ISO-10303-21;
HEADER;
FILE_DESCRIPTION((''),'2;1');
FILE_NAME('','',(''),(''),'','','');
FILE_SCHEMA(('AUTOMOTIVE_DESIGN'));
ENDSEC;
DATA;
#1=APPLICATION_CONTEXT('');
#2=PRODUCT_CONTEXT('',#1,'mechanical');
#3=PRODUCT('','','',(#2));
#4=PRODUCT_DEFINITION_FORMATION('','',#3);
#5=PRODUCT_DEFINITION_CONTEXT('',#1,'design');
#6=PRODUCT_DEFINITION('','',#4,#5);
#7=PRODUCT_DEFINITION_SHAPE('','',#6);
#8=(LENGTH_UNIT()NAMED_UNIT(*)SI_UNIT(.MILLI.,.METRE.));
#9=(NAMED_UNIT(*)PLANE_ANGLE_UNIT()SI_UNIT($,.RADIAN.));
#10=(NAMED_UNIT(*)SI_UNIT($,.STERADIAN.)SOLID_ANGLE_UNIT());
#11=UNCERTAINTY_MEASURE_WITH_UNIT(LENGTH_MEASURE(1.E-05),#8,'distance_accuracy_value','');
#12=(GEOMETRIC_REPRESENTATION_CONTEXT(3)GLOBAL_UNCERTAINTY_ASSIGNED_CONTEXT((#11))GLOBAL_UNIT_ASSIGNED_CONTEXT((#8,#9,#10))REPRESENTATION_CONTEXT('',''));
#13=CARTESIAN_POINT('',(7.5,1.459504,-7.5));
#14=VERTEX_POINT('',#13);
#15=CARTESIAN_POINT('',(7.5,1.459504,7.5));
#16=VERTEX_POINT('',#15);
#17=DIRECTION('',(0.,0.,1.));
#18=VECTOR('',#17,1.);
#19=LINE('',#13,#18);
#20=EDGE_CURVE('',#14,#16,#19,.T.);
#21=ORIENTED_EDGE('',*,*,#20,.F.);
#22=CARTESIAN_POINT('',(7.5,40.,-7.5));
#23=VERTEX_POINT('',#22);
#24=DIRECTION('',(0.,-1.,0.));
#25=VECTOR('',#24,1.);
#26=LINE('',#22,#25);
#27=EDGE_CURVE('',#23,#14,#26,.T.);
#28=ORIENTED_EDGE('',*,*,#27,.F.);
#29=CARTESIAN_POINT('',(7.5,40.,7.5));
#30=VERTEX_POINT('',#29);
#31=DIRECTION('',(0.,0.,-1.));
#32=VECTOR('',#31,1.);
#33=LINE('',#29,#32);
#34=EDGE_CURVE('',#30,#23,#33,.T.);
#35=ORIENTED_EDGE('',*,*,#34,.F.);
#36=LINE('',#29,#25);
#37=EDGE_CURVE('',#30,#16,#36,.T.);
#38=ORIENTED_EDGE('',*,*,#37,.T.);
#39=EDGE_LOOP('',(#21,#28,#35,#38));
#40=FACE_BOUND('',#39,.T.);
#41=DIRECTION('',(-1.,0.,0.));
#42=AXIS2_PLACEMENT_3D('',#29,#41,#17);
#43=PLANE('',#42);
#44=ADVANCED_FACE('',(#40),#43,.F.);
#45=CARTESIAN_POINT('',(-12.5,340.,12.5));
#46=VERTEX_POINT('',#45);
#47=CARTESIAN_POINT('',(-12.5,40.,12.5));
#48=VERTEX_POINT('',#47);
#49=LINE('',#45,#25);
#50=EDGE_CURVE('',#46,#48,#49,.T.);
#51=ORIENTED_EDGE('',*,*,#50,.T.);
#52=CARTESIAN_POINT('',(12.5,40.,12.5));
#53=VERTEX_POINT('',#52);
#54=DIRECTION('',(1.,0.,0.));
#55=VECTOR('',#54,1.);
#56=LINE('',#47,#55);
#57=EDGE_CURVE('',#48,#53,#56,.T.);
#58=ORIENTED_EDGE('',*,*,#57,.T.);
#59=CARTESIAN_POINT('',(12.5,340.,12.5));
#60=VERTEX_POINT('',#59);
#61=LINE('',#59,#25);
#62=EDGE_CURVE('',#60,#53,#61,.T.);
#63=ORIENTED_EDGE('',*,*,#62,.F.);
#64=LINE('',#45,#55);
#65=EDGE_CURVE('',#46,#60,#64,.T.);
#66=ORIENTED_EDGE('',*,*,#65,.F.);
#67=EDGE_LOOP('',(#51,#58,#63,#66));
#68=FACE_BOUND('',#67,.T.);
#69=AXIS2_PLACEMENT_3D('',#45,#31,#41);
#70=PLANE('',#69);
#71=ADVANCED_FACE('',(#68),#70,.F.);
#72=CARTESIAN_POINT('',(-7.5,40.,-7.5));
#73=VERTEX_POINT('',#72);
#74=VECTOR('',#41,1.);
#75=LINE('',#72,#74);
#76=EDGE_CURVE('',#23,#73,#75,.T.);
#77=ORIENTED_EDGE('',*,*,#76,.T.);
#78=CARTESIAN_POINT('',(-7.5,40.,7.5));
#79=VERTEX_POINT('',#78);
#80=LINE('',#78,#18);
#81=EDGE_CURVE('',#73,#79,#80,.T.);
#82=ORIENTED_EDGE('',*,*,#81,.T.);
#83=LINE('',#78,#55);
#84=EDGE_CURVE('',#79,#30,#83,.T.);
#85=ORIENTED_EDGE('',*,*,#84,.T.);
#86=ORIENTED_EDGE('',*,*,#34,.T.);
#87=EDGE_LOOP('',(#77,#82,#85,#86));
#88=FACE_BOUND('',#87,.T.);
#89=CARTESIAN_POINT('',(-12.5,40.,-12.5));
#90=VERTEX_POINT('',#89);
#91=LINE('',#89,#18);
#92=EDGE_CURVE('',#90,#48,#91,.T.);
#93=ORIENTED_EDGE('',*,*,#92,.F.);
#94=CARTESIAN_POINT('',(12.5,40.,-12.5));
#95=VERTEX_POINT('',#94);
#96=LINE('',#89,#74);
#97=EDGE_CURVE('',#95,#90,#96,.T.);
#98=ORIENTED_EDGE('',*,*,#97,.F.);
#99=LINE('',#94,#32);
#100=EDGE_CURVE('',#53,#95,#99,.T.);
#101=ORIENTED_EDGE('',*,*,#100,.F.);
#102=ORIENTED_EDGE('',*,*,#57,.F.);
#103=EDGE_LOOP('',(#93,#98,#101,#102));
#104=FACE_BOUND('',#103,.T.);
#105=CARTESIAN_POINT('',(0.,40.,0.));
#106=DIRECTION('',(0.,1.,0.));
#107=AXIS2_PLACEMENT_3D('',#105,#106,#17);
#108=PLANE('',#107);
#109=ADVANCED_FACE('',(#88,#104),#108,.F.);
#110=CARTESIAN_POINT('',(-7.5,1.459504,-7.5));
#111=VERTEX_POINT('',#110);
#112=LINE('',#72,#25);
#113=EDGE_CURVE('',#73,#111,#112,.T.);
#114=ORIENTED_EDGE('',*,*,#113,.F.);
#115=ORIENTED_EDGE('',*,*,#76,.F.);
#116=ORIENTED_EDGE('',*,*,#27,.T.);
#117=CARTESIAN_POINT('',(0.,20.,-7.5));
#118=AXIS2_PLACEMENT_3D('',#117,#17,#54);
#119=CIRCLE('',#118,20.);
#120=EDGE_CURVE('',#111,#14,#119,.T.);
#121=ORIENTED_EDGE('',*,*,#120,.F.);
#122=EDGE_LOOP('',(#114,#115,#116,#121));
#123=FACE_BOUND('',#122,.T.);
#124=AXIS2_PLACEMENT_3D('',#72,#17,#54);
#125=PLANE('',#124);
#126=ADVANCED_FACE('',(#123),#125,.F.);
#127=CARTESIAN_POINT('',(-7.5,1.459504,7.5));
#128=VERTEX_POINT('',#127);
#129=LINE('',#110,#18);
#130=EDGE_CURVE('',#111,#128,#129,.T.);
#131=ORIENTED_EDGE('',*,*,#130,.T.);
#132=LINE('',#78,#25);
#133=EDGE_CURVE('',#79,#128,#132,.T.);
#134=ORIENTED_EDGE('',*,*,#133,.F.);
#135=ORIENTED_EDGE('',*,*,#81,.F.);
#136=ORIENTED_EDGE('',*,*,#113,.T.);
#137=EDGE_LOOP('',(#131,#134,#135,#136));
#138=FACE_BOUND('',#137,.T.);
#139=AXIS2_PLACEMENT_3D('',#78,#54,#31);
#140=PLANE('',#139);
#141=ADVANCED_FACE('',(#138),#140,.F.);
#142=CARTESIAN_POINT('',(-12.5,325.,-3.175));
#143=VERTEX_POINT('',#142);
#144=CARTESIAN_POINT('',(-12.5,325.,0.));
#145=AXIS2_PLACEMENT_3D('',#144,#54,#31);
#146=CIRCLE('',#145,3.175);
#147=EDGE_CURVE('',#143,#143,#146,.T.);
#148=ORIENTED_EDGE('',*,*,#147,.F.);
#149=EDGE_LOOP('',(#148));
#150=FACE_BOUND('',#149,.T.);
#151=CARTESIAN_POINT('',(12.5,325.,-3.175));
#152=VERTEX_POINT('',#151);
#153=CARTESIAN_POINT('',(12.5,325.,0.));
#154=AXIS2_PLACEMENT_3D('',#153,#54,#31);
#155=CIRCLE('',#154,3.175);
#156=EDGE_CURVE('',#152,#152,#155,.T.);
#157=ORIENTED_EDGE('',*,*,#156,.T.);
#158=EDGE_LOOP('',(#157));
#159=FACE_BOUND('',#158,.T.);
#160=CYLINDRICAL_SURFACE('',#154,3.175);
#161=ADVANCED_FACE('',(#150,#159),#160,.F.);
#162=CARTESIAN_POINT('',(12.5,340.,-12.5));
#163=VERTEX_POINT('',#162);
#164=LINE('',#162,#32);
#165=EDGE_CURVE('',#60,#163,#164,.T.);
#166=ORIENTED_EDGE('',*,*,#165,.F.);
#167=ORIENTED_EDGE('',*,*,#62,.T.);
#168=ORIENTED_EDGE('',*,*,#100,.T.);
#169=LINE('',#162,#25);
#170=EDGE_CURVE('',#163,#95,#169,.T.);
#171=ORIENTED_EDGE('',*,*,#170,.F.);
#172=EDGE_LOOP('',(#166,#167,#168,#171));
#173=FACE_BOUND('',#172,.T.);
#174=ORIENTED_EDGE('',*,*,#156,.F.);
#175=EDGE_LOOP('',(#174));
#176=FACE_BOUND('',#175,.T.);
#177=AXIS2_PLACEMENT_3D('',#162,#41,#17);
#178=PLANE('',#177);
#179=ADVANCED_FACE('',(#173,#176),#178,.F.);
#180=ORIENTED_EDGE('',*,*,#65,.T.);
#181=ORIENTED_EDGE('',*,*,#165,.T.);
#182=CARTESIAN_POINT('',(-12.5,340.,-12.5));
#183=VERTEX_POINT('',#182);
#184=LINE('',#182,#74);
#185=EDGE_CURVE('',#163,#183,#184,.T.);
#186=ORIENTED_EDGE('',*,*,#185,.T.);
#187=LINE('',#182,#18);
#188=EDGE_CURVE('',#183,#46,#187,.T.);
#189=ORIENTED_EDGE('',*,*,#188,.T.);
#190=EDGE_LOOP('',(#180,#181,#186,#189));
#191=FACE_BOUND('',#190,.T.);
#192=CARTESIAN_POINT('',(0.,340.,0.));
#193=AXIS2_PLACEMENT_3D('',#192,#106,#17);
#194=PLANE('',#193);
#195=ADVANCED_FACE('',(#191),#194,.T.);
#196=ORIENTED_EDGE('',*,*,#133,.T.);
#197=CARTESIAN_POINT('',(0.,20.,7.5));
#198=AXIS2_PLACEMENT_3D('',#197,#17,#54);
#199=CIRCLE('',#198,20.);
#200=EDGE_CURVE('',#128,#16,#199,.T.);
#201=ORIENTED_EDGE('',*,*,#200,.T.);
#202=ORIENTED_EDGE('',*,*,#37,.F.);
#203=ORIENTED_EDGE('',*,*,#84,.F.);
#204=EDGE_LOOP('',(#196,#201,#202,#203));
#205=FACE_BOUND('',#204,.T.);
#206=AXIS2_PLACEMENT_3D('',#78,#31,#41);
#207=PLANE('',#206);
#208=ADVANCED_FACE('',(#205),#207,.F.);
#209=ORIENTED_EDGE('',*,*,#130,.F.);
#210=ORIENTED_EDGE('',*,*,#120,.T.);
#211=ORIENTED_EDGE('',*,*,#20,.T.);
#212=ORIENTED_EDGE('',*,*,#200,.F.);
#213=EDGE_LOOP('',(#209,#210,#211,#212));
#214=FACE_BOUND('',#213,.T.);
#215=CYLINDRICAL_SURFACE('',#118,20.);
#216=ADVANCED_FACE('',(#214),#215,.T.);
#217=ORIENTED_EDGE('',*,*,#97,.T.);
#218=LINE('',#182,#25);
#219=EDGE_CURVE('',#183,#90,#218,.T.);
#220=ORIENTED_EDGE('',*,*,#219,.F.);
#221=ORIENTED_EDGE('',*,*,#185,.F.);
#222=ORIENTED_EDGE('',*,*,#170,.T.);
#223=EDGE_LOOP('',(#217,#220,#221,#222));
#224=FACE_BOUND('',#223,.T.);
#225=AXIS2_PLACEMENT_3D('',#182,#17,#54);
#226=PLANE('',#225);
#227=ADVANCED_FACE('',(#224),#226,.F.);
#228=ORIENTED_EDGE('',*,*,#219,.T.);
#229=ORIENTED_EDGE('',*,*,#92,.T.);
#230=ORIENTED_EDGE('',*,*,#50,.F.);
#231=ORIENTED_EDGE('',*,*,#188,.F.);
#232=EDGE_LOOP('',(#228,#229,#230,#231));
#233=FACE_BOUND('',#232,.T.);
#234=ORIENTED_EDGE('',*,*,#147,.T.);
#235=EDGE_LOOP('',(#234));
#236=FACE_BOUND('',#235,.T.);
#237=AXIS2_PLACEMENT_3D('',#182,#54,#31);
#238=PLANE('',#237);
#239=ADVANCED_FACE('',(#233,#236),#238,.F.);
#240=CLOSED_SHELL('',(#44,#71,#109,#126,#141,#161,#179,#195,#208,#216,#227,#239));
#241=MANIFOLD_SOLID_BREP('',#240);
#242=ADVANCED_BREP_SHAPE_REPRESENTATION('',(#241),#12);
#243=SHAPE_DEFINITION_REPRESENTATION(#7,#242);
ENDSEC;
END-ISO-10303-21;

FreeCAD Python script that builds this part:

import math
import FreeCAD as App
import Part
import Sketcher
Q = App.Units.Quantity


def add_polygon(sketch, points):
    """Adds a closed chain of lines whose ends are joined by coincident constraints."""
    first, n = sketch.GeometryCount, len(points)
    for a, b in zip(points, points[1:] + points[:1]):
        sketch.addGeometry(Part.LineSegment(App.Vector(*a, 0), App.Vector(*b, 0)), False)
    for i in range(n):
        sketch.addConstraint(Sketcher.Constraint("Coincident", first + i, 2, first + (i + 1) % n, 1))

doc = App.newDocument("Part")
body = doc.addObject("PartDesign::Body", "Body")

# Sketch on XZ plane
sketch1 = body.newObject("Sketcher::SketchObject", "Sketch")
sketch1.AttachmentSupport = (doc.getObject("XZ_Plane"), [""])
sketch1.MapMode = "FlatFace"
add_polygon(sketch1, [(-8, -8), (-8, 8), (8, 8), (8, -8)])  # lines 0-3
sketch1.addConstraint([
    Sketcher.Constraint("Vertical", 0),
    Sketcher.Constraint("Horizontal", 1),
    Sketcher.Constraint("Vertical", 2),
    Sketcher.Constraint("Horizontal", 3),
    Sketcher.Constraint("Symmetric", 0, 2, 2, 2, -1, 1),
    Sketcher.Constraint("Equal", 3, 0),
    Sketcher.Constraint("DistanceX", 1, 1, 1, 2, Q("15 mm")),
])
pad1 = body.newObject("PartDesign::Pad", "Pad")
pad1.Profile = sketch1
pad1.Length = 40
pad1.Reversed = True

# Sketch on XY plane
sketch2 = body.newObject("Sketcher::SketchObject", "Sketch001")
sketch2.AttachmentSupport = (doc.getObject("XY_Plane"), [""])
sketch2.MapMode = "FlatFace"
sketch2.AttachmentOffset = App.Placement(App.Vector(0, 0, 7.5), App.Rotation())
sketch2.addGeometry([
    Part.ArcOfCircle(Part.Circle(App.Vector(0, 20, 0), App.Vector(0, 0, 1), 20), math.radians(-112), math.radians(-90)),  # 0
    Part.LineSegment(App.Vector(-7.5, 1.5, 0), App.Vector(-7.5, 0, 0)),  # 1
    Part.LineSegment(App.Vector(-7.5, 0, 0), App.Vector(0, 0, 0)),  # 2
    Part.ArcOfCircle(Part.Circle(App.Vector(0, 20, 0), App.Vector(0, 0, 1), 20), math.radians(-90), math.radians(-68)),  # 3
    Part.LineSegment(App.Vector(0, 0, 0), App.Vector(7.5, 0, 0)),  # 4
    Part.LineSegment(App.Vector(7.5, 0, 0), App.Vector(7.5, 1.5, 0)),  # 5
], False)
sketch2.addConstraint([
    Sketcher.Constraint("Coincident", 0, 1, 1, 1),
    Sketcher.Constraint("Coincident", 1, 2, 2, 1),
    Sketcher.Constraint("Tangent", 2, 2, 0, 2),
    Sketcher.Constraint("Tangent", 3, 1, 4, 1),
    Sketcher.Constraint("Coincident", 4, 2, 5, 1),
    Sketcher.Constraint("Coincident", 5, 2, 3, 2),
    Sketcher.Constraint("Vertical", 1),
    Sketcher.Constraint("Horizontal", 2),
    Sketcher.Constraint("Horizontal", 4),
    Sketcher.Constraint("Vertical", 5),
    Sketcher.Constraint("Coincident", 2, 2, -1, 1),
    Sketcher.Constraint("Coincident", 3, 1, -1, 1),
    Sketcher.Constraint("Equal", 0, 3),
    Sketcher.Constraint("Horizontal", 0, 1, 5, 2),
    Sketcher.Constraint("Radius", 0, Q("20 mm")),
    Sketcher.Constraint("DistanceX", 2, 1, 2, 2, Q("7.5 mm")),
])
pocket1 = body.newObject("PartDesign::Pocket", "Pocket")
pocket1.Profile = sketch2
pocket1.Type = "ThroughAll"

# Sketch on XZ plane
sketch3 = body.newObject("Sketcher::SketchObject", "Sketch002")
sketch3.AttachmentSupport = (doc.getObject("XZ_Plane"), [""])
sketch3.MapMode = "FlatFace"
sketch3.AttachmentOffset = App.Placement(App.Vector(0, 0, -40), App.Rotation())
add_polygon(sketch3, [(-12, -12), (-12, 12), (12, 12), (12, -12)])  # lines 0-3
sketch3.addConstraint([
    Sketcher.Constraint("Vertical", 0),
    Sketcher.Constraint("Horizontal", 1),
    Sketcher.Constraint("Vertical", 2),
    Sketcher.Constraint("Horizontal", 3),
    Sketcher.Constraint("Symmetric", 0, 2, 2, 2, -1, 1),
    Sketcher.Constraint("Equal", 3, 0),
    Sketcher.Constraint("DistanceX", 1, 1, 1, 2, Q("25 mm")),
])
pad2 = body.newObject("PartDesign::Pad", "Pad001")
pad2.Profile = sketch3
pad2.Length = 300
pad2.Reversed = True

# Sketch on YZ plane
sketch4 = body.newObject("Sketcher::SketchObject", "Sketch003")
sketch4.AttachmentSupport = (doc.getObject("YZ_Plane"), [""])
sketch4.MapMode = "FlatFace"
sketch4.AttachmentOffset = App.Placement(App.Vector(0, 0, 12.5), App.Rotation())
sketch4.addGeometry(Part.Circle(App.Vector(325, 0, 0), App.Vector(0, 0, 1), 3.2), False)
sketch4.addConstraint([
    Sketcher.Constraint("PointOnObject", 0, 3, -1),
    Sketcher.Constraint("Diameter", 0, Q("6.35 mm")),
    Sketcher.Constraint("DistanceX", -1, 1, 0, 3, Q("325 mm")),
])
doc.recompute()
hole = body.newObject("PartDesign::Hole", "Hole")
hole.Profile = sketch4
hole.ThreadType = "None"
hole.Diameter = 6.35
hole.DepthType = "ThroughAll"

doc.recompute()
